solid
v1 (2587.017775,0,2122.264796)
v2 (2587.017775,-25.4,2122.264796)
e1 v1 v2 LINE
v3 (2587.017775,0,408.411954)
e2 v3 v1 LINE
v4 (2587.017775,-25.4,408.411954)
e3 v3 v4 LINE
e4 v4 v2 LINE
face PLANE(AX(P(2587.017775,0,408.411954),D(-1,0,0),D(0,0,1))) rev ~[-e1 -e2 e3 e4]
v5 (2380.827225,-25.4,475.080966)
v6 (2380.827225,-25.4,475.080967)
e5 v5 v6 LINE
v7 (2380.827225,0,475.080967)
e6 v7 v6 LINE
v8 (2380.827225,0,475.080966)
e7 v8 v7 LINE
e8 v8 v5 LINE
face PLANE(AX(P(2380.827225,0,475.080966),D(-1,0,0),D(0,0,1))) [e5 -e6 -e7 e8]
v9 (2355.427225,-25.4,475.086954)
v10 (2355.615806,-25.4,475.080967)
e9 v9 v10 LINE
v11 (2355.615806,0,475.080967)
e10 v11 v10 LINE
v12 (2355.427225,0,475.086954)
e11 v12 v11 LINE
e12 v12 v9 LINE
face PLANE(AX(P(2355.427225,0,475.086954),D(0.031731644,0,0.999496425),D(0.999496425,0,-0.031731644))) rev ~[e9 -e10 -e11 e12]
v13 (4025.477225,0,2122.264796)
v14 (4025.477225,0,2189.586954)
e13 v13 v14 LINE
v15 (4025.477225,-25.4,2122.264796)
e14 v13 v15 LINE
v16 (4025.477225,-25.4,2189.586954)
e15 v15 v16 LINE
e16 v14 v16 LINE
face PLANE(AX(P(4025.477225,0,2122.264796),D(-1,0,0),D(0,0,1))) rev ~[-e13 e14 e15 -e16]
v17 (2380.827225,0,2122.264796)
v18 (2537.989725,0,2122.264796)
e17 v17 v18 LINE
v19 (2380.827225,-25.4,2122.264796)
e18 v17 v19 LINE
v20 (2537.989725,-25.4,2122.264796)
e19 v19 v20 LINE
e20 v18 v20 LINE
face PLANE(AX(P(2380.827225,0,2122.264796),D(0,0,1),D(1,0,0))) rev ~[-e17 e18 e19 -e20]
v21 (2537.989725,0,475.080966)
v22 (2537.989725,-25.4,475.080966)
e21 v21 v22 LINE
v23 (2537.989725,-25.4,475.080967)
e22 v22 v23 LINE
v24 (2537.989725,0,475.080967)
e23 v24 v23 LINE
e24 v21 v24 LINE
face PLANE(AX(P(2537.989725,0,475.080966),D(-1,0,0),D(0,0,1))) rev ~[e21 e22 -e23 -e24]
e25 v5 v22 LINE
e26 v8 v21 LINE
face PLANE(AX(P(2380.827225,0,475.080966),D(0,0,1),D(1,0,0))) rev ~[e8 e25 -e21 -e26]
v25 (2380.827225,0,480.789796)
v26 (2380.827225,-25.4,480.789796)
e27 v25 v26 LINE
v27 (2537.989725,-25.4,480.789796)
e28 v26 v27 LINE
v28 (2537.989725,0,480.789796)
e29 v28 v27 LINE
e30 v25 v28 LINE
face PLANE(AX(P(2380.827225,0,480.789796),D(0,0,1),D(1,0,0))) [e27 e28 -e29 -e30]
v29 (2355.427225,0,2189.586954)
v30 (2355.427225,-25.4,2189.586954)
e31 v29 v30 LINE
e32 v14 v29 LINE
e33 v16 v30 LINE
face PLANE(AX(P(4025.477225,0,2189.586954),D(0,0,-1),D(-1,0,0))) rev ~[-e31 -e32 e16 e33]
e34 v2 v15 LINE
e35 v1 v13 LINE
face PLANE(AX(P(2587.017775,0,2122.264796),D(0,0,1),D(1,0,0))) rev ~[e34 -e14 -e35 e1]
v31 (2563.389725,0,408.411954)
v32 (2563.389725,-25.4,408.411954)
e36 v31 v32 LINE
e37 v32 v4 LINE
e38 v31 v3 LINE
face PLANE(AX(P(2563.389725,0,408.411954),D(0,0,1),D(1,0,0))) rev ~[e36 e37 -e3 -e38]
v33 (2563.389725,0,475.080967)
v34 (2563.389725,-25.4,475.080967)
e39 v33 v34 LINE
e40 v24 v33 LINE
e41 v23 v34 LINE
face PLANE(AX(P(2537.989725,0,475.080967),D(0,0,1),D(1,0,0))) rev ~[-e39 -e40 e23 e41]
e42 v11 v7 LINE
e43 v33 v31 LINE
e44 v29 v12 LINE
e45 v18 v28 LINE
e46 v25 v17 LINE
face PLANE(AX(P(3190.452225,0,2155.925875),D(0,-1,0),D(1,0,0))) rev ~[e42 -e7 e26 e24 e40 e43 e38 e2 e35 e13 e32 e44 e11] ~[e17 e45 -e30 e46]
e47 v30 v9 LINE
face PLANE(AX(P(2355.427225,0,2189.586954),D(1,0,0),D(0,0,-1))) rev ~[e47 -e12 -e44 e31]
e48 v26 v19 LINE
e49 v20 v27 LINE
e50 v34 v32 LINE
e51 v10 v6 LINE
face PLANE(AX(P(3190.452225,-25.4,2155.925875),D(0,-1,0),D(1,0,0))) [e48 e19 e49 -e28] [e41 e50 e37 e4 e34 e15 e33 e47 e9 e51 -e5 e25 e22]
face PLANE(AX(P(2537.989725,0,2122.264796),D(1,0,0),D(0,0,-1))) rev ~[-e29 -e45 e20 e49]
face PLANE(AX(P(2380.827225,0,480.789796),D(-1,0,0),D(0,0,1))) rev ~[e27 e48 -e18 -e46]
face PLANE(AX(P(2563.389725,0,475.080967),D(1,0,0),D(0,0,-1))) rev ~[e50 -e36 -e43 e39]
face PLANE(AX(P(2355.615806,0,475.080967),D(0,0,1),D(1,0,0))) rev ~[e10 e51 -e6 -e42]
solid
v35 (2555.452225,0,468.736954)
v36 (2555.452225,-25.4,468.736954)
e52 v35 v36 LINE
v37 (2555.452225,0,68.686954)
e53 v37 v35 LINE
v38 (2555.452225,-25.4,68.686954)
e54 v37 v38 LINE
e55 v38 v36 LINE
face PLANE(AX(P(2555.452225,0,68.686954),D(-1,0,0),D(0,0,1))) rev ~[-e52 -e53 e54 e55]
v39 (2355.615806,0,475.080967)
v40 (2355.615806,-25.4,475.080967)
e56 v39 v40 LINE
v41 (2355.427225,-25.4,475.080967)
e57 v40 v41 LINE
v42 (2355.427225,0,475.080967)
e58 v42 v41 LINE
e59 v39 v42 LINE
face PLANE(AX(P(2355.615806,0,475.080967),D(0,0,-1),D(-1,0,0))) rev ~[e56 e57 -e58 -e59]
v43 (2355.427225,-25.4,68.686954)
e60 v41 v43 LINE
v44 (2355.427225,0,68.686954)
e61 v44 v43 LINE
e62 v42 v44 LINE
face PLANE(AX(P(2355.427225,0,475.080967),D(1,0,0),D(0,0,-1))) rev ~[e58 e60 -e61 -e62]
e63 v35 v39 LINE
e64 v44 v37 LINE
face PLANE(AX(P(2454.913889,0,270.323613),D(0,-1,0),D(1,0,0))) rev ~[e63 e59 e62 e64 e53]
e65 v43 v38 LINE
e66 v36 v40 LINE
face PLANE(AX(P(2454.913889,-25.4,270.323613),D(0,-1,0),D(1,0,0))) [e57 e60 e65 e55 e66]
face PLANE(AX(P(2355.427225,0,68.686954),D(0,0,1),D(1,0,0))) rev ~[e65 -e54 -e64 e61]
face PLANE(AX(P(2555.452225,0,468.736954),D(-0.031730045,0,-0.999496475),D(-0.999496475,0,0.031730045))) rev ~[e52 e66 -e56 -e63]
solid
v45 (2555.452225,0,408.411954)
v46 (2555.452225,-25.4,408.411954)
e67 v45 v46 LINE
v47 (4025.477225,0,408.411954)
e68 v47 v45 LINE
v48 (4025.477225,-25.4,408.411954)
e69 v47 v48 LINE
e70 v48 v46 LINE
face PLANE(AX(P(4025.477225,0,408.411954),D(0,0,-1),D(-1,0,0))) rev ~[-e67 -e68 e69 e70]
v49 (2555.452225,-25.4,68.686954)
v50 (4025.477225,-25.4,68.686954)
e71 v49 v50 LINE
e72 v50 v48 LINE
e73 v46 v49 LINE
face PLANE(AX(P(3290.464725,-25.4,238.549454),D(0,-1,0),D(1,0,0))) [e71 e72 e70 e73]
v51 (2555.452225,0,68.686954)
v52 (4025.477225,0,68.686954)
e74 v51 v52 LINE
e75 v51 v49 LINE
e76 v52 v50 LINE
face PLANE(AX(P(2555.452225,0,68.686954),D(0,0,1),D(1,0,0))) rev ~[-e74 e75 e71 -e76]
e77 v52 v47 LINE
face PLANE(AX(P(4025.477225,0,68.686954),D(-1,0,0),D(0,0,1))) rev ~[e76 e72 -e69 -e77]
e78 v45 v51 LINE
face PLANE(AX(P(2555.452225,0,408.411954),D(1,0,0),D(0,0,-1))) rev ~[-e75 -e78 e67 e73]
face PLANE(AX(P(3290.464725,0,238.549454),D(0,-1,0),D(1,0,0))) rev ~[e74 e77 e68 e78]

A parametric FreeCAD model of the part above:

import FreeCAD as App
import Part
import Sketcher

V = App.Vector
Q = App.Units.Quantity

doc = App.newDocument("Part")
body = doc.addObject("PartDesign::Body", "Body")
body.AllowCompound = True

# Sketch on XZ plane
sketch1 = body.newObject("Sketcher::SketchObject", "Sketch")
sketch1.AttachmentSupport = (doc.getObject("XZ_Plane"), [""])
sketch1.MapMode = "FlatFace"
sketch1.addGeometry([
    Part.LineSegment(V(4025.477225, 2122.264796, 0), V(4025.477225, 2189.586954, 0)),  # 0
    Part.LineSegment(V(4025.477225, 2189.586954, 0), V(2355.427225, 2189.586954, 0)),  # 1
    Part.LineSegment(V(2355.427225, 2189.586954, 0), V(2355.427225, 475.086954, 0)),  # 2
    Part.LineSegment(V(2355.427225, 475.086954, 0), V(2355.615806, 475.080967, 0)),  # 3
    Part.LineSegment(V(2355.615806, 475.080967, 0), V(2380.827225, 475.080967, 0)),  # 4
    Part.LineSegment(V(2380.827225, 475.080966, 0), V(2380.827225, 475.080967, 0)),  # 5
    Part.LineSegment(V(2380.827225, 475.080966, 0), V(2537.989725, 475.080966, 0)),  # 6
    Part.LineSegment(V(2537.989725, 475.080967, 0), V(2537.989725, 475.080966, 0)),  # 7
    Part.LineSegment(V(2537.989725, 475.080967, 0), V(2563.389725, 475.080967, 0)),  # 8
    Part.LineSegment(V(2563.389725, 475.080967, 0), V(2563.389725, 408.411954, 0)),  # 9
    Part.LineSegment(V(2563.389725, 408.411954, 0), V(2587.017775, 408.411954, 0)),  # 10
    Part.LineSegment(V(2587.017775, 408.411954, 0), V(2587.017775, 2122.264796, 0)),  # 11
    Part.LineSegment(V(2587.017775, 2122.264796, 0), V(4025.477225, 2122.264796, 0)),  # 12
    Part.LineSegment(V(2380.827225, 480.789796, 0), V(2380.827225, 2122.264796, 0)),  # 13
    Part.LineSegment(V(2380.827225, 2122.264796, 0), V(2537.989725, 2122.264796, 0)),  # 14
    Part.LineSegment(V(2537.989725, 2122.264796, 0), V(2537.989725, 480.789796, 0)),  # 15
    Part.LineSegment(V(2537.989725, 480.789796, 0), V(2380.827225, 480.789796, 0)),  # 16
    Part.LineSegment(V(2355.427225, 68.686954, 0), V(2555.452225, 68.686954, 0)),  # 17
    Part.LineSegment(V(2555.452225, 68.686954, 0), V(2555.452225, 468.736954, 0)),  # 18
    Part.LineSegment(V(2555.452225, 468.736954, 0), V(2355.615806, 475.080967, 0)),  # 19
    Part.LineSegment(V(2355.615806, 475.080967, 0), V(2355.427225, 475.080967, 0)),  # 20
    Part.LineSegment(V(2355.427225, 475.080967, 0), V(2355.427225, 68.686954, 0)),  # 21
], False)
sketch1.addConstraint([
    Sketcher.Constraint("Coincident", 0, 2, 1, 1),
    Sketcher.Constraint("Coincident", 1, 2, 2, 1),
    Sketcher.Constraint("Coincident", 2, 2, 3, 1),
    Sketcher.Constraint("Coincident", 3, 2, 4, 1),
    Sketcher.Constraint("Coincident", 4, 2, 5, 1),
    Sketcher.Constraint("Coincident", 5, 2, 6, 1),
    Sketcher.Constraint("Coincident", 6, 2, 7, 1),
    Sketcher.Constraint("Coincident", 7, 2, 8, 1),
    Sketcher.Constraint("Coincident", 8, 2, 9, 1),
    Sketcher.Constraint("Coincident", 9, 2, 10, 1),
    Sketcher.Constraint("Coincident", 10, 2, 11, 1),
    Sketcher.Constraint("Coincident", 11, 2, 12, 1),
    Sketcher.Constraint("Coincident", 12, 2, 0, 1),
    Sketcher.Constraint("Coincident", 13, 2, 14, 1),
    Sketcher.Constraint("Coincident", 14, 2, 15, 1),
    Sketcher.Constraint("Coincident", 15, 2, 16, 1),
    Sketcher.Constraint("Coincident", 16, 2, 13, 1),
    Sketcher.Constraint("Coincident", 17, 2, 18, 1),
    Sketcher.Constraint("Coincident", 18, 2, 19, 1),
    Sketcher.Constraint("Coincident", 19, 2, 20, 1),
    Sketcher.Constraint("Coincident", 20, 2, 21, 1),
    Sketcher.Constraint("Coincident", 21, 2, 17, 1),
    Sketcher.Constraint("Vertical", 0),
    Sketcher.Constraint("Horizontal", 1),
    Sketcher.Constraint("Vertical", 2),
    Sketcher.Constraint("Horizontal", 4),
    Sketcher.Constraint("Horizontal", 5),
    Sketcher.Constraint("Horizontal", 6),
    Sketcher.Constraint("Horizontal", 7),
    Sketcher.Constraint("Horizontal", 8),
    Sketcher.Constraint("Vertical", 9),
    Sketcher.Constraint("Horizontal", 10),
    Sketcher.Constraint("Vertical", 11),
    Sketcher.Constraint("Horizontal", 12),
    Sketcher.Constraint("Vertical", 13),
    Sketcher.Constraint("Horizontal", 14),
    Sketcher.Constraint("Vertical", 15),
    Sketcher.Constraint("Horizontal", 16),
    Sketcher.Constraint("Horizontal", 17),
    Sketcher.Constraint("Vertical", 18),
    Sketcher.Constraint("Horizontal", 20),
    Sketcher.Constraint("Vertical", 21),
    Sketcher.Constraint("Coincident", 19, 2, 3, 2),
    Sketcher.Constraint("Parallel", 3, 19),
    Sketcher.Constraint("Horizontal", 12, 2, 13, 2),
    Sketcher.Constraint("Vertical", 5, 2, 13, 2),
    Sketcher.Constraint("Vertical", 7, 2, 14, 2),
    Sketcher.Constraint("Vertical", 2, 2, 20, 2),
    Sketcher.Constraint("Equal", 6, 14),
    Sketcher.Constraint("DistanceX", 8, 1, 8, 2, Q("1 in")),
    Sketcher.Constraint("DistanceY", 2, 2, 2, 1, Q("67.5 in")),
    Sketcher.Constraint("DistanceX", 2, 2, 4, 2, Q("1 in")),
    Sketcher.Constraint("DistanceX", 2, 2, 5, 2, Q("1 in")),
    Sketcher.Constraint("DistanceX", 1, 2, 1, 1, Q("65.75 in")),
    Sketcher.Constraint("DistanceY", 18, 1, 18, 2, Q("15.75 in")),
    Sketcher.Constraint("DistanceX", 6, 1, 6, 2, Q("6.1875 in")),
    Sketcher.Constraint("DistanceX", 17, 1, 17, 2, Q("7.875 in")),
    Sketcher.Constraint("DistanceY", 13, 1, 13, 2, Q("64.625 in")),
    Sketcher.Constraint("DistanceY", 17, 2, 9, 2, Q("13.375 in")),
    Sketcher.Constraint("DistanceX", 4, 1, 4, 2, 25.211419),
    Sketcher.Constraint("DistanceX", 10, 1, 10, 2, 23.62805),
    Sketcher.Constraint("DistanceY", 11, 1, 11, 2, 1713.852842),
    Sketcher.Constraint("DistanceY", 0, 1, 0, 2, 67.322158),
    Sketcher.Constraint("DistanceX", -1, 1, 0, 2, 4025.477225),
    Sketcher.Constraint("DistanceY", -1, 1, 0, 2, 2189.586954),
])
pad1 = body.newObject("PartDesign::Pad", "Pad")
pad1.Profile = sketch1
pad1.Length = Q("1 in")
body2 = doc.addObject("PartDesign::Body", "Body001")

# Sketch on XZ plane
sketch2 = body2.newObject("Sketcher::SketchObject", "Sketch001")
sketch2.AttachmentSupport = (doc.getObject("XZ_Plane001"), [""])
sketch2.MapMode = "FlatFace"
sketch2.addGeometry([
    Part.LineSegment(V(2555.452225, 408.411954, 0), V(2555.452225, 68.686954, 0)),
    Part.LineSegment(V(2555.452225, 68.686954, 0), V(4025.477225, 68.686954, 0)),
    Part.LineSegment(V(4025.477225, 68.686954, 0), V(4025.477225, 408.411954, 0)),
    Part.LineSegment(V(4025.477225, 408.411954, 0), V(2555.452225, 408.411954, 0)),
], False)
sketch2.addConstraint([
    Sketcher.Constraint("Coincident", 0, 2, 1, 1),
    Sketcher.Constraint("Coincident", 1, 2, 2, 1),
    Sketcher.Constraint("Coincident", 2, 2, 3, 1),
    Sketcher.Constraint("Coincident", 3, 2, 0, 1),
    Sketcher.Constraint("Vertical", 0),
    Sketcher.Constraint("Horizontal", 1),
    Sketcher.Constraint("Vertical", 2),
    Sketcher.Constraint("Horizontal", 3),
    Sketcher.Constraint("DistanceX", 1, 1, 1, 2, Q("57.875 in")),
    Sketcher.Constraint("DistanceY", 0, 2, 0, 1, Q("13.375 in")),
    Sketcher.Constraint("DistanceX", -1, 1, 0, 2, 2555.452225),
    Sketcher.Constraint("DistanceY", -1, 1, 0, 2, 68.686954),
])
pad2 = body2.newObject("PartDesign::Pad", "Pad001")
pad2.Profile = sketch2
pad2.Length = Q("1 in")

doc.recompute()
